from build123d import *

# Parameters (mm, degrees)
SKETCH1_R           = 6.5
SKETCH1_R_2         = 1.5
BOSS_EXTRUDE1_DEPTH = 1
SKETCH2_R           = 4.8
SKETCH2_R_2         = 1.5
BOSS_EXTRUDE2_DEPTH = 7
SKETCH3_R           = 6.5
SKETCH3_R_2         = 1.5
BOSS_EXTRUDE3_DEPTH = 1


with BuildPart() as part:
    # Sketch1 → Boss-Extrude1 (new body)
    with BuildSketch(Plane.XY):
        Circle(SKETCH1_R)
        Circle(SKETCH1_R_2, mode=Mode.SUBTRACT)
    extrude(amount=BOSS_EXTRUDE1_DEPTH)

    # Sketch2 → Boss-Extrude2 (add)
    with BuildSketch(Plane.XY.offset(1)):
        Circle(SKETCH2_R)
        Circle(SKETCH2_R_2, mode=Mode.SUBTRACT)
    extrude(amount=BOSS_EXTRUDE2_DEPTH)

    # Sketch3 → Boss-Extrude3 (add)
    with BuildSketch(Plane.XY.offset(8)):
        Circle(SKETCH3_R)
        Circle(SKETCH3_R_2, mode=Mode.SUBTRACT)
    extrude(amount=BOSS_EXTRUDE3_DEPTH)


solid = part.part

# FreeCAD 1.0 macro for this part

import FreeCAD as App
import Part
import Sketcher

V = App.Vector
Q = App.Units.Quantity

doc = App.newDocument("Part")
body = doc.addObject("PartDesign::Body", "Body")

# Sketch on XY plane
sketch1 = doc.addObject("Sketcher::SketchObject", "Sketch")
body.addObject(sketch1)
sketch1.AttachmentSupport = (doc.XY_Plane, [""])
sketch1.MapMode = "FlatFace"
sketch1.addGeometry([
    Part.Circle(V(0, 0, 0), V(0, 0, 1), 6.5),
    Part.Circle(V(0, 0, 0), V(0, 0, 1), 1.5),
], False)
sketch1.addConstraint([
    Sketcher.Constraint("Coincident", 0, 3, -1, 1),
    Sketcher.Constraint("Coincident", 1, 3, -1, 1),
    Sketcher.Constraint("Diameter", 0, Q("13 mm")),
    Sketcher.Constraint("Diameter", 1, Q("3 mm")),
])
pad1 = doc.addObject("PartDesign::Pad", "Pad")
body.addObject(pad1)
pad1.Profile = sketch1
pad1.Length = 1

# Sketch on XY plane
sketch2 = doc.addObject("Sketcher::SketchObject", "Sketch001")
body.addObject(sketch2)
sketch2.AttachmentSupport = (doc.XY_Plane, [""])
sketch2.MapMode = "FlatFace"
sketch2.AttachmentOffset = App.Placement(V(0, 0, 1), App.Rotation())
sketch2.addGeometry([
    Part.Circle(V(0, 0, 0), V(0, 0, 1), 4.8),
    Part.Circle(V(0, 0, 0), V(0, 0, 1), 1.5),
], False)
sketch2.addConstraint([
    Sketcher.Constraint("Coincident", 0, 3, -1, 1),
    Sketcher.Constraint("Coincident", 1, 3, -1, 1),
    Sketcher.Constraint("Diameter", 1, Q("3 mm")),
    Sketcher.Constraint("Diameter", 0, Q("9.6 mm")),
])
pad2 = doc.addObject("PartDesign::Pad", "Pad001")
body.addObject(pad2)
pad2.Profile = sketch2
pad2.Length = 7

# Sketch on XY plane
sketch3 = doc.addObject("Sketcher::SketchObject", "Sketch002")
body.addObject(sketch3)
sketch3.AttachmentSupport = (doc.XY_Plane, [""])
sketch3.MapMode = "FlatFace"
sketch3.AttachmentOffset = App.Placement(V(0, 0, 8), App.Rotation())
sketch3.addGeometry([
    Part.Circle(V(0, 0, 0), V(0, 0, 1), 6.5),
    Part.Circle(V(0, 0, 0), V(0, 0, 1), 1.5),
], False)
sketch3.addConstraint([
    Sketcher.Constraint("Coincident", 0, 3, -1, 1),
    Sketcher.Constraint("Coincident", 1, 3, -1, 1),
    Sketcher.Constraint("Diameter", 0, Q("13 mm")),
    Sketcher.Constraint("Diameter", 1, Q("3 mm")),
])
pad3 = doc.addObject("PartDesign::Pad", "Pad002")
body.addObject(pad3)
pad3.Profile = sketch3
pad3.Length = 1

doc.recompute()
